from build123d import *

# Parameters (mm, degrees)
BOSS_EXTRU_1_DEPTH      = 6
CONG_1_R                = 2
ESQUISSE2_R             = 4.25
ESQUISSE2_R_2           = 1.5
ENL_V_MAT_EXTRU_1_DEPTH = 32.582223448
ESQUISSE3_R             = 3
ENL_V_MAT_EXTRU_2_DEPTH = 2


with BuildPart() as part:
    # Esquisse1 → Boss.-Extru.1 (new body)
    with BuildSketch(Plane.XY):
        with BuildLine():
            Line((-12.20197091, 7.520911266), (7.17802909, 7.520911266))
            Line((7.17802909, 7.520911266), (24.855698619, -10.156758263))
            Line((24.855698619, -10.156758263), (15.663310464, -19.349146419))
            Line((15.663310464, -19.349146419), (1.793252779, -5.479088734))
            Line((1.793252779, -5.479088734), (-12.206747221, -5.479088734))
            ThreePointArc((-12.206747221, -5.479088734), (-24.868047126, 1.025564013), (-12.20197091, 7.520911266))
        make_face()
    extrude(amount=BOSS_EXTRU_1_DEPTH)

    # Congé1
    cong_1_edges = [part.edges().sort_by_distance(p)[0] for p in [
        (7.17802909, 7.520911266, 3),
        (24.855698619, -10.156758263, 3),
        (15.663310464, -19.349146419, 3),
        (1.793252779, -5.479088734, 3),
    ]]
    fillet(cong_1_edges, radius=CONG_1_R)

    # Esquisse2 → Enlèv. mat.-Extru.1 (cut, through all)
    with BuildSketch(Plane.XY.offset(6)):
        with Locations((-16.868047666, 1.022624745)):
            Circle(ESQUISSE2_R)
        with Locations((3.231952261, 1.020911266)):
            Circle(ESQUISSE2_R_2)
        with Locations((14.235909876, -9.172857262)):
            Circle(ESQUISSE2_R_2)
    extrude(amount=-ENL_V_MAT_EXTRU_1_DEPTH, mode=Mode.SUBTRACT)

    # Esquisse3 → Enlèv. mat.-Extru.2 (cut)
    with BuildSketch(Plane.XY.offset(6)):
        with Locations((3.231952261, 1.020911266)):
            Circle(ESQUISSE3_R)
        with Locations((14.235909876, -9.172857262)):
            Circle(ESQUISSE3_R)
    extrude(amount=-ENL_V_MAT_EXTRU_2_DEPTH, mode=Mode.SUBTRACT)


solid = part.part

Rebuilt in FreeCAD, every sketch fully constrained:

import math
import FreeCAD as App
import Part
import Sketcher
Q = App.Units.Quantity


def edges_at(feature, points):
    """Names of the edges that pass closest to the given points."""
    edges = feature.Shape.Edges
    near = lambda p: min(range(len(edges)), key=lambda i: edges[i].distToShape(Part.Vertex(*p))[0])
    return sorted({f"Edge{near(p) + 1}" for p in points})

doc = App.newDocument("Part")
params = doc.addObject("Spreadsheet::Sheet", "Params")
for row, (alias, value) in enumerate([
    ("sketch1_radius", "8 mm"),
    ("sketch1_width", "14 mm"),
    ("sketch1_length", "13 mm"),
    ("sketch1_length2", "25 mm"),
    ("sketch1_width2", "19.38 mm"),
    ("pad1_length", "6 mm"),
    ("fillet_radius", "2 mm"),
    ("sketch2_diameter", "3 mm"),
    ("sketch2_diameter2", "8.5 mm"),
    ("sketch3_diameter", "6 mm"),
    ("pocket2_length", "2 mm"),
], start=1):
    params.set(f"A{row}", alias)
    params.set(f"B{row}", "=" + value)
    params.setAlias(f"B{row}", alias)

body = doc.addObject("PartDesign::Body", "Body")

sketch1 = doc.addObject("Sketcher::SketchObject", "Sketch")
body.addObject(sketch1)
sketch1.AttachmentSupport = (doc.XY_Plane, [""])
sketch1.MapMode = "FlatFace"
sketch1.addGeometry(Part.LineSegment(App.Vector(7.178029, 7.520911, 0), App.Vector(-12.201971, 7.520911, 0)), False)
sketch1.addGeometry(Part.ArcOfCircle(Part.Circle(App.Vector(-16.868048, 1.022625, 0), App.Vector(0, 0, 1), 8), math.radians(54.319867), math.radians(305.638031)), False)
sketch1.addGeometry(Part.LineSegment(App.Vector(-12.206747, -5.479089, 0), App.Vector(1.793253, -5.479089, 0)), False)
sketch1.addGeometry(Part.LineSegment(App.Vector(1.793253, -5.479089, 0), App.Vector(15.66331, -19.349146, 0)), False)
sketch1.addGeometry(Part.LineSegment(App.Vector(15.66331, -19.349146, 0), App.Vector(24.855699, -10.156758, 0)), False)
sketch1.addGeometry(Part.LineSegment(App.Vector(24.855699, -10.156758, 0), App.Vector(7.178029, 7.520911, 0)), False)
sketch1.addConstraint(Sketcher.Constraint("Coincident", 0, 2, 1, 1))
sketch1.addConstraint(Sketcher.Constraint("Coincident", 1, 2, 2, 1))
sketch1.addConstraint(Sketcher.Constraint("Coincident", 2, 2, 3, 1))
sketch1.addConstraint(Sketcher.Constraint("Coincident", 3, 2, 4, 1))
sketch1.addConstraint(Sketcher.Constraint("Coincident", 4, 2, 5, 1))
sketch1.addConstraint(Sketcher.Constraint("Coincident", 5, 2, 0, 1))
sketch1.addConstraint(Sketcher.Constraint("Horizontal", 0))
sketch1.addConstraint(Sketcher.Constraint("Horizontal", 2))
sketch1.addConstraint(Sketcher.Constraint("Perpendicular", 3, 4))
sketch1.addConstraint(Sketcher.Constraint("Perpendicular", 4, 5))
sketch1.addConstraint(Sketcher.Constraint("Radius", 1, 8.0))
sketch1.addConstraint(Sketcher.Constraint("DistanceX", 2, 1, 2, 2, 14.0))
sketch1.addConstraint(Sketcher.Constraint("Angle", 3, Q("-45 deg")))
sketch1.addConstraint(Sketcher.Constraint("Distance", 4, 13.0))
sketch1.addConstraint(Sketcher.Constraint("Distance", 5, 25.0))
sketch1.addConstraint(Sketcher.Constraint("DistanceY", 1, 2, 0, 2, 13.0))
sketch1.addConstraint(Sketcher.Constraint("DistanceX", 0, 2, 0, 1, 19.38))
sketch1.addConstraint(Sketcher.Constraint("DistanceX", -1, 1, 4, 2, 24.855699))
sketch1.addConstraint(Sketcher.Constraint("DistanceY", -1, 1, 0, 2, 7.520911))
sketch1.setExpression("Constraints[10]", "Params.sketch1_radius")
sketch1.setExpression("Constraints[11]", "Params.sketch1_width")
sketch1.setExpression("Constraints[13]", "Params.sketch1_length")
sketch1.setExpression("Constraints[14]", "Params.sketch1_length2")
sketch1.setExpression("Constraints[16]", "Params.sketch1_width2")
pad1 = doc.addObject("PartDesign::Pad", "Pad")
body.addObject(pad1)
pad1.Profile = sketch1
pad1.setExpression("Length", "Params.pad1_length")
doc.recompute()

fillet = doc.addObject("PartDesign::Fillet", "Fillet")
body.addObject(fillet)
fillet.Base = (pad1, edges_at(pad1, [
    (7.178, 7.521, 3),
    (24.856, -10.157, 3),
    (15.663, -19.349, 3),
    (1.793, -5.479, 3),
]))
fillet.setExpression("Radius", "Params.fillet_radius")

sketch2 = doc.addObject("Sketcher::SketchObject", "Sketch001")
body.addObject(sketch2)
sketch2.AttachmentSupport = (doc.XY_Plane, [""])
sketch2.MapMode = "FlatFace"
sketch2.AttachmentOffset = App.Placement(App.Vector(0, 0, 6), App.Rotation())
sketch2.addGeometry(Part.Circle(App.Vector(-16.868048, 1.022625, 0), App.Vector(0, 0, 1), 4.25), False)
sketch2.addGeometry(Part.Circle(App.Vector(3.231952, 1.020911, 0), App.Vector(0, 0, 1), 1.5), False)
sketch2.addGeometry(Part.Circle(App.Vector(14.23591, -9.172857, 0), App.Vector(0, 0, 1), 1.5), False)
sketch2.addConstraint(Sketcher.Constraint("Equal", 1, 2))
sketch2.addConstraint(Sketcher.Constraint("Diameter", 1, 3.0))
sketch2.addConstraint(Sketcher.Constraint("Diameter", 0, 8.5))
sketch2.addConstraint(Sketcher.Constraint("DistanceX", 0, 3, 1, 3, 20.1))
sketch2.addConstraint(Sketcher.Constraint("DistanceY", -1, 1, 1, 3, 1.020911))
sketch2.addConstraint(Sketcher.Constraint("DistanceX", -1, 1, 2, 3, 14.23591))
sketch2.addConstraint(Sketcher.Constraint("DistanceY", 2, 3, 1, 3, 10.193769))
sketch2.addConstraint(Sketcher.Constraint("DistanceX", 0, 3, -1, 1, 16.868048))
sketch2.addConstraint(Sketcher.Constraint("DistanceY", -1, 1, 0, 3, 1.022625))
sketch2.setExpression("Constraints[1]", "Params.sketch2_diameter")
sketch2.setExpression("Constraints[2]", "Params.sketch2_diameter2")
pocket1 = doc.addObject("PartDesign::Pocket", "Pocket")
body.addObject(pocket1)
pocket1.Profile = sketch2
pocket1.Type = "ThroughAll"

sketch3 = doc.addObject("Sketcher::SketchObject", "Sketch002")
body.addObject(sketch3)
sketch3.AttachmentSupport = (doc.XY_Plane, [""])
sketch3.MapMode = "FlatFace"
sketch3.AttachmentOffset = App.Placement(App.Vector(0, 0, 6), App.Rotation())
sketch3.addGeometry(Part.Circle(App.Vector(3.231952, 1.020911, 0), App.Vector(0, 0, 1), 3), False)
sketch3.addGeometry(Part.Circle(App.Vector(14.23591, -9.172857, 0), App.Vector(0, 0, 1), 3), False)
sketch3.addConstraint(Sketcher.Constraint("Equal", 0, 1))
sketch3.addConstraint(Sketcher.Constraint("Diameter", 0, 6.0))
sketch3.addConstraint(Sketcher.Constraint("DistanceY", -1, 1, 0, 3, 1.020911))
sketch3.addConstraint(Sketcher.Constraint("DistanceX", -1, 1, 1, 3, 14.23591))
sketch3.addConstraint(Sketcher.Constraint("DistanceY", 1, 3, 0, 3, 10.193769))
sketch3.addConstraint(Sketcher.Constraint("DistanceX", -1, 1, 0, 3, 3.231952))
sketch3.setExpression("Constraints[1]", "Params.sketch3_diameter")
pocket2 = doc.addObject("PartDesign::Pocket", "Pocket001")
body.addObject(pocket2)
pocket2.Profile = sketch3
pocket2.setExpression("Length", "Params.pocket2_length")

doc.recompute()
